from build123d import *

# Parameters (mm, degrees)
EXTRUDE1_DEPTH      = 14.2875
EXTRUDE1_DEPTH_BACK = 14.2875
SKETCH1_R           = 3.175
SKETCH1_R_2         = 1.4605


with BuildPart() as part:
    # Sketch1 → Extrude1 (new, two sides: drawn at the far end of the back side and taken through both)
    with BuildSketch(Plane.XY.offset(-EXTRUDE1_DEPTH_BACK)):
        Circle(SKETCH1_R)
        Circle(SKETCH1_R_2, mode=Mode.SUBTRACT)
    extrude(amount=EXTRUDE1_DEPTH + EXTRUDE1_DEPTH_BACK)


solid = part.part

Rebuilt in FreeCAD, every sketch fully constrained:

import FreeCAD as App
import Part
import Sketcher
Q = App.Units.Quantity

doc = App.newDocument("Part")
params = doc.addObject("Spreadsheet::Sheet", "Params")
for row, (alias, value) in enumerate([
    ("sketch1_diameter", "0.25 in"),
    ("sketch1_diameter2", "0.115 in"),
    ("pad1_length", "0.5625 in"),
    ("pad1_length2", "0.5625 in"),
], start=1):
    params.set(f"A{row}", alias)
    params.set(f"B{row}", "=" + value)
    params.setAlias(f"B{row}", alias)

body = doc.addObject("PartDesign::Body", "Body")

# Sketch on XY plane
sketch1 = body.newObject("Sketcher::SketchObject", "Sketch")
sketch1.AttachmentSupport = (doc.getObject("XY_Plane"), [""])
sketch1.MapMode = "FlatFace"
sketch1.addGeometry(Part.Circle(App.Vector(0, 0, 0), App.Vector(0, 0, 1), 3.2), False)
sketch1.addGeometry(Part.Circle(App.Vector(0, 0, 0), App.Vector(0, 0, 1), 1.5), False)
sketch1.addConstraint(Sketcher.Constraint("Coincident", 0, 3, -1, 1))
sketch1.addConstraint(Sketcher.Constraint("Coincident", 1, 3, -1, 1))
sketch1.addConstraint(Sketcher.Constraint("Diameter", 0, Q("0.25 in")))
sketch1.addConstraint(Sketcher.Constraint("Diameter", 1, Q("0.115 in")))
sketch1.setExpression("Constraints[2]", "Params.sketch1_diameter")
sketch1.setExpression("Constraints[3]", "Params.sketch1_diameter2")
pad1 = body.newObject("PartDesign::Pad", "Pad")
pad1.Profile = sketch1
pad1.Type = "TwoLengths"
pad1.setExpression("Length", "Params.pad1_length")
pad1.setExpression("Length2", "Params.pad1_length2")

doc.recompute()
